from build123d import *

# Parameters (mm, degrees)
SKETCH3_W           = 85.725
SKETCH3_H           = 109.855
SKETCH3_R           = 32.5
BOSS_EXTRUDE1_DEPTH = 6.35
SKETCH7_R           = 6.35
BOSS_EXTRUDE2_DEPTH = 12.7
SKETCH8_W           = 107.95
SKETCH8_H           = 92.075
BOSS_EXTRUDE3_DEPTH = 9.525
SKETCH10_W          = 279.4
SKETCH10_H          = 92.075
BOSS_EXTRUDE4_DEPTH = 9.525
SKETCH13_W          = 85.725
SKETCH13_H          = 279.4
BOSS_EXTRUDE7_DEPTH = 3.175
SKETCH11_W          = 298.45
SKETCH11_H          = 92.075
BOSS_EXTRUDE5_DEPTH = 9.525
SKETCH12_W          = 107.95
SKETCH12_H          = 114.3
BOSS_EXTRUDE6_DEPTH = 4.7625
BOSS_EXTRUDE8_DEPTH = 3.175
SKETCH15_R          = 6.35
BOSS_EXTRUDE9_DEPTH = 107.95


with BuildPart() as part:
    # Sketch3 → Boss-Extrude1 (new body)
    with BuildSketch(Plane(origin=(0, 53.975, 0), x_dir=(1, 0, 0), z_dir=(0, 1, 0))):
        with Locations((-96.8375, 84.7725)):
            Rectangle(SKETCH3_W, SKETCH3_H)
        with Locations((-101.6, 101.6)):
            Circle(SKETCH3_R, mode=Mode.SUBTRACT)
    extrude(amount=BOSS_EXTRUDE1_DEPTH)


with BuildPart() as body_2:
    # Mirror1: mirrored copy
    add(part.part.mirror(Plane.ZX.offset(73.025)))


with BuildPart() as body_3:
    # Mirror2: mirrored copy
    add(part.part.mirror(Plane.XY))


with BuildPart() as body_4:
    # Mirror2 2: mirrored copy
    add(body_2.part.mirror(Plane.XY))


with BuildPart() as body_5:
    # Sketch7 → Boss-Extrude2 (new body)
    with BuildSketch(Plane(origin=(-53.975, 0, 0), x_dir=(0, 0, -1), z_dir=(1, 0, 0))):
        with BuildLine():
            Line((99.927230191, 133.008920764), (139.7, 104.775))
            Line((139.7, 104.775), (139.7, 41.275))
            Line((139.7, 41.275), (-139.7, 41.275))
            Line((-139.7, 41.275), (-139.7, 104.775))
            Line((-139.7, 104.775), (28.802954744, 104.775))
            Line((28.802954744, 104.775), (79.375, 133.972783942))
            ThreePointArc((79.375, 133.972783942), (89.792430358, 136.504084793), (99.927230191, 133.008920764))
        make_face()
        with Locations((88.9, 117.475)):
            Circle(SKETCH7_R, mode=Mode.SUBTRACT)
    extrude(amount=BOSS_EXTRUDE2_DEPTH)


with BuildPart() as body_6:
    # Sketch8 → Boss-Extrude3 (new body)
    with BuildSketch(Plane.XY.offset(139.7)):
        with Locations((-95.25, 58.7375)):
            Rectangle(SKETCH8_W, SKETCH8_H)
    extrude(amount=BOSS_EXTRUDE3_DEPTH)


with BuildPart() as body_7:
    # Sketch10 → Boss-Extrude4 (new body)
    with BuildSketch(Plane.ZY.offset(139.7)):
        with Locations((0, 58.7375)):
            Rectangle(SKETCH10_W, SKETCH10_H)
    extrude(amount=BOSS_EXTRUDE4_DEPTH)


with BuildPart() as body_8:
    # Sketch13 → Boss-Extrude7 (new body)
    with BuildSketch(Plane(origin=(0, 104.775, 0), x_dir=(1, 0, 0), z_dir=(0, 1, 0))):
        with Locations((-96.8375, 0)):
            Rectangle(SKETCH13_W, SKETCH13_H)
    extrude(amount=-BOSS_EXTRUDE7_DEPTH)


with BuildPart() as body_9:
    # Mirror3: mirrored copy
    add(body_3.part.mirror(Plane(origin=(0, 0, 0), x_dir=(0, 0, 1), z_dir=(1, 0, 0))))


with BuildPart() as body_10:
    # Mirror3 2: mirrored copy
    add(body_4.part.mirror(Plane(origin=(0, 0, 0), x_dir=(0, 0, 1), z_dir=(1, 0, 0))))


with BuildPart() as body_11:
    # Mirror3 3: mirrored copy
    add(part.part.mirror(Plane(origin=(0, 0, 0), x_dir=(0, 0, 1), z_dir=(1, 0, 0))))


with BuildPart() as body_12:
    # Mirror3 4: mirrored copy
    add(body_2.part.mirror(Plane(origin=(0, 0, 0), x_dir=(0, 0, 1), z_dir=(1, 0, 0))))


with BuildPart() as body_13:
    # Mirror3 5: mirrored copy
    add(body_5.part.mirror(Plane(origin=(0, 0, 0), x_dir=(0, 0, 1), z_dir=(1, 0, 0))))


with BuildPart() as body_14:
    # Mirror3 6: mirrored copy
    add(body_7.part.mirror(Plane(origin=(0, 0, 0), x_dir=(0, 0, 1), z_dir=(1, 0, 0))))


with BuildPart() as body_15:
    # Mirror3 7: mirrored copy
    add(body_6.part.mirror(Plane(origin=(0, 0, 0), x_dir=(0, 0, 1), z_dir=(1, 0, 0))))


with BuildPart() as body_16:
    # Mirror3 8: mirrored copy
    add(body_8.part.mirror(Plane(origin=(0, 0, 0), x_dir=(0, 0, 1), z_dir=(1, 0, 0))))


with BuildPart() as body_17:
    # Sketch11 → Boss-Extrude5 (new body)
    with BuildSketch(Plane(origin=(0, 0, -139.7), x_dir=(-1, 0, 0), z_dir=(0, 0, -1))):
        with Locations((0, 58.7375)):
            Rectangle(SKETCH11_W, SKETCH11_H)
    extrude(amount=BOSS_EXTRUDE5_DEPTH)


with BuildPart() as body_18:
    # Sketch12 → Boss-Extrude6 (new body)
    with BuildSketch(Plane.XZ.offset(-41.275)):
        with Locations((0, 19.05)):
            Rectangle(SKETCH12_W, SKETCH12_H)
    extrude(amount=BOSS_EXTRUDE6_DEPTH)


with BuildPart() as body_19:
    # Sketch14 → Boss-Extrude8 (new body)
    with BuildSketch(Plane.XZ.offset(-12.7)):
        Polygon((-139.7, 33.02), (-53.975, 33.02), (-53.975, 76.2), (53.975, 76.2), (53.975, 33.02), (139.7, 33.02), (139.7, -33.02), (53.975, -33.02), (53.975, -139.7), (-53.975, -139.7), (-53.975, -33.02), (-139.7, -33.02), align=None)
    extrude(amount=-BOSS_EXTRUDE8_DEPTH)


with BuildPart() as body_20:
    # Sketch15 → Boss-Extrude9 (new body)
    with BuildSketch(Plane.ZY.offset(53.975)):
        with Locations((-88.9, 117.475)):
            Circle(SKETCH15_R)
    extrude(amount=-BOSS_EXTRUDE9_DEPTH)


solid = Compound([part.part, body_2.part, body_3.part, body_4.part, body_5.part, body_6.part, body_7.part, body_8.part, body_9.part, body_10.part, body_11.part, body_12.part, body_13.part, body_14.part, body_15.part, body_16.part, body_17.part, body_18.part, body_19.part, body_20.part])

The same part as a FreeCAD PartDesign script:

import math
import FreeCAD as App
import Part
import Sketcher

V = App.Vector
Q = App.Units.Quantity

doc = App.newDocument("Part")
body = doc.addObject("PartDesign::Body", "Body")

# Sketch on XZ plane
sketch1 = body.newObject("Sketcher::SketchObject", "Sketch")
sketch1.AttachmentSupport = (doc.getObject("XZ_Plane"), [""])
sketch1.MapMode = "FlatFace"
sketch1.AttachmentOffset = App.Placement(V(0, 0, -2.125 * 25.4), App.Rotation())
sketch1.addGeometry(Part.LineSegment(V(-139.7, -139.7, 0), V(-139.7, -29.845, 0)), False)
sketch1.addGeometry(Part.LineSegment(V(-139.7, -29.845, 0), V(-53.975, -29.845, 0)), False)
sketch1.addGeometry(Part.LineSegment(V(-53.975, -29.845, 0), V(-53.975, -139.7, 0)), False)
sketch1.addGeometry(Part.LineSegment(V(-53.975, -139.7, 0), V(-139.7, -139.7, 0)), False)
sketch1.addGeometry(Part.Circle(V(-101.6, -101.6, 0), V(0, 0, 1), 32.5), False)
sketch1.addConstraint(Sketcher.Constraint("Coincident", 0, 2, 1, 1))
sketch1.addConstraint(Sketcher.Constraint("Coincident", 1, 2, 2, 1))
sketch1.addConstraint(Sketcher.Constraint("Coincident", 2, 2, 3, 1))
sketch1.addConstraint(Sketcher.Constraint("Coincident", 3, 2, 0, 1))
sketch1.addConstraint(Sketcher.Constraint("Vertical", 0))
sketch1.addConstraint(Sketcher.Constraint("Horizontal", 1))
sketch1.addConstraint(Sketcher.Constraint("Vertical", 2))
sketch1.addConstraint(Sketcher.Constraint("Horizontal", 3))
sketch1.addConstraint(Sketcher.Constraint("DistanceX", 4, 3, -1, 1, Q("4 in")))
sketch1.addConstraint(Sketcher.Constraint("DistanceY", 4, 3, -1, 1, Q("4 in")))
sketch1.addConstraint(Sketcher.Constraint("DistanceX", 0, 2, -1, 1, Q("5.5 in")))
sketch1.addConstraint(Sketcher.Constraint("DistanceY", 2, 2, -1, 1, Q("5.5 in")))
sketch1.addConstraint(Sketcher.Constraint("Diameter", 4, Q("65 mm")))
sketch1.addConstraint(Sketcher.Constraint("DistanceX", 1, 1, 1, 2, Q("3.375 in")))
sketch1.addConstraint(Sketcher.Constraint("DistanceY", 0, 1, 0, 2, Q("4.325 in")))
pad1 = body.newObject("PartDesign::Pad", "Pad")
pad1.Profile = sketch1
pad1.Length = Q("0.25 in")
pad1.Reversed = True
body2 = doc.addObject("PartDesign::Body", "Body001")
doc.recompute()

mirroring = doc.addObject("Part::Mirroring", "Mirroring")
mirroring.Source = body
mirroring.Base = V(0, 73.025, 0)
mirroring.Normal = V(0, 1, 0)
body2.BaseFeature = mirroring
doc.recompute()
body3 = doc.addObject("PartDesign::Body", "Body002")
doc.recompute()

mirroring2 = doc.addObject("Part::Mirroring", "Mirroring001")
mirroring2.Source = body
mirroring2.Base = V(0, 0, 0)
mirroring2.Normal = V(0, 0, 1)
body3.BaseFeature = mirroring2
doc.recompute()
body4 = doc.addObject("PartDesign::Body", "Body003")
doc.recompute()

mirroring3 = doc.addObject("Part::Mirroring", "Mirroring002")
mirroring3.Source = body2
mirroring3.Base = V(0, 0, 0)
mirroring3.Normal = V(0, 0, 1)
body4.BaseFeature = mirroring3
doc.recompute()
body5 = doc.addObject("PartDesign::Body", "Body004")

# Sketch on YZ plane
sketch2 = body5.newObject("Sketcher::SketchObject", "Sketch001")
sketch2.AttachmentSupport = (doc.getObject("YZ_Plane004"), [""])
sketch2.MapMode = "FlatFace"
sketch2.AttachmentOffset = App.Placement(V(0, 0, -2.125 * 25.4), App.Rotation())
sketch2.addGeometry(Part.LineSegment(V(104.775, -139.7, 0), V(133.008921, -99.92723, 0)), False)
sketch2.addGeometry(Part.ArcOfCircle(Part.Circle(V(117.475, -88.9, 0), V(0, 0, 1), 19.05), math.radians(-35.370206), math.radians(30)), False)
sketch2.addGeometry(Part.LineSegment(V(133.972784, -79.375, 0), V(104.775, -28.802955, 0)), False)
sketch2.addGeometry(Part.LineSegment(V(104.775, -28.802955, 0), V(104.775, 139.7, 0)), False)
sketch2.addGeometry(Part.LineSegment(V(104.775, 139.7, 0), V(41.275, 139.7, 0)), False)
sketch2.addGeometry(Part.LineSegment(V(41.275, 139.7, 0), V(41.275, -139.7, 0)), False)
sketch2.addGeometry(Part.LineSegment(V(41.275, -139.7, 0), V(104.775, -139.7, 0)), False)
sketch2.addGeometry(Part.Circle(V(117.475, -88.9, 0), V(0, 0, 1), 6.35), False)
sketch2.addConstraint(Sketcher.Constraint("Tangent", 0, 2, 1, 1))
sketch2.addConstraint(Sketcher.Constraint("Tangent", 1, 2, 2, 1))
sketch2.addConstraint(Sketcher.Constraint("Coincident", 2, 2, 3, 1))
sketch2.addConstraint(Sketcher.Constraint("Coincident", 3, 2, 4, 1))
sketch2.addConstraint(Sketcher.Constraint("Coincident", 4, 2, 5, 1))
sketch2.addConstraint(Sketcher.Constraint("Coincident", 5, 2, 6, 1))
sketch2.addConstraint(Sketcher.Constraint("Coincident", 6, 2, 0, 1))
sketch2.addConstraint(Sketcher.Constraint("Vertical", 3))
sketch2.addConstraint(Sketcher.Constraint("Horizontal", 4))
sketch2.addConstraint(Sketcher.Constraint("Vertical", 5))
sketch2.addConstraint(Sketcher.Constraint("Horizontal", 6))
sketch2.addConstraint(Sketcher.Constraint("Coincident", 7, 3, 1, 3))
sketch2.addConstraint(Sketcher.Constraint("Symmetric", 3, 2, 6, 2, -1))
sketch2.addConstraint(Sketcher.Constraint("Diameter", 7, Q("0.5 in")))
sketch2.addConstraint(Sketcher.Constraint("DistanceY", 5, 2, 5, 1, Q("11 in")))
sketch2.addConstraint(Sketcher.Constraint("Radius", 1, Q("0.75 in")))
sketch2.addConstraint(Sketcher.Constraint("DistanceX", 4, 2, 4, 1, Q("2.5 in")))
sketch2.addConstraint(Sketcher.Constraint("Angle", 2, Q("120 deg")))
sketch2.addConstraint(Sketcher.Constraint("DistanceY", 7, 3, 3, 2, Q("9 in")))
sketch2.addConstraint(Sketcher.Constraint("DistanceX", 4, 2, 7, 3, Q("3 in")))
sketch2.addConstraint(Sketcher.Constraint("DistanceX", -1, 1, 1, 3, Q("4.625 in")))
pad2 = body5.newObject("PartDesign::Pad", "Pad001")
pad2.Profile = sketch2
pad2.Length = Q("0.5 in")
body6 = doc.addObject("PartDesign::Body", "Body005")

# Sketch on XY plane
sketch3 = body6.newObject("Sketcher::SketchObject", "Sketch002")
sketch3.AttachmentSupport = (doc.getObject("XY_Plane005"), [""])
sketch3.MapMode = "FlatFace"
sketch3.AttachmentOffset = App.Placement(V(0, 0, 5.5 * 25.4), App.Rotation())
sketch3.addGeometry(Part.LineSegment(V(-149.225, 104.775, 0), V(-149.225, 12.7, 0)), False)
sketch3.addGeometry(Part.LineSegment(V(-149.225, 12.7, 0), V(-41.275, 12.7, 0)), False)
sketch3.addGeometry(Part.LineSegment(V(-41.275, 12.7, 0), V(-41.275, 104.775, 0)), False)
sketch3.addGeometry(Part.LineSegment(V(-41.275, 104.775, 0), V(-149.225, 104.775, 0)), False)
sketch3.addConstraint(Sketcher.Constraint("Coincident", 0, 2, 1, 1))
sketch3.addConstraint(Sketcher.Constraint("Coincident", 1, 2, 2, 1))
sketch3.addConstraint(Sketcher.Constraint("Coincident", 2, 2, 3, 1))
sketch3.addConstraint(Sketcher.Constraint("Coincident", 3, 2, 0, 1))
sketch3.addConstraint(Sketcher.Constraint("Vertical", 0))
sketch3.addConstraint(Sketcher.Constraint("Horizontal", 1))
sketch3.addConstraint(Sketcher.Constraint("Vertical", 2))
sketch3.addConstraint(Sketcher.Constraint("Horizontal", 3))
sketch3.addConstraint(Sketcher.Constraint("DistanceX", 1, 1, 1, 2, Q("4.25 in")))
sketch3.addConstraint(Sketcher.Constraint("DistanceY", -1, 1, 0, 2, Q("0.5 in")))
sketch3.addConstraint(Sketcher.Constraint("DistanceY", 0, 2, 0, 1, Q("3.625 in")))
sketch3.addConstraint(Sketcher.Constraint("DistanceX", 0, 2, -1, 1, Q("5.875 in")))
pad3 = body6.newObject("PartDesign::Pad", "Pad002")
pad3.Profile = sketch3
pad3.Length = Q("0.375 in")
body7 = doc.addObject("PartDesign::Body", "Body006")

# Sketch on YZ plane
sketch4 = body7.newObject("Sketcher::SketchObject", "Sketch003")
sketch4.AttachmentSupport = (doc.getObject("YZ_Plane006"), [""])
sketch4.MapMode = "FlatFace"
sketch4.AttachmentOffset = App.Placement(V(0, 0, -5.5 * 25.4), App.Rotation())
sketch4.addGeometry(Part.LineSegment(V(104.775, -139.7, 0), V(12.7, -139.7, 0)), False)
sketch4.addGeometry(Part.LineSegment(V(12.7, -139.7, 0), V(12.7, 139.7, 0)), False)
sketch4.addGeometry(Part.LineSegment(V(12.7, 139.7, 0), V(104.775, 139.7, 0)), False)
sketch4.addGeometry(Part.LineSegment(V(104.775, 139.7, 0), V(104.775, -139.7, 0)), False)
sketch4.addConstraint(Sketcher.Constraint("Coincident", 0, 2, 1, 1))
sketch4.addConstraint(Sketcher.Constraint("Coincident", 1, 2, 2, 1))
sketch4.addConstraint(Sketcher.Constraint("Coincident", 2, 2, 3, 1))
sketch4.addConstraint(Sketcher.Constraint("Coincident", 3, 2, 0, 1))
sketch4.addConstraint(Sketcher.Constraint("Horizontal", 0))
sketch4.addConstraint(Sketcher.Constraint("Vertical", 1))
sketch4.addConstraint(Sketcher.Constraint("Horizontal", 2))
sketch4.addConstraint(Sketcher.Constraint("Vertical", 3))
sketch4.addConstraint(Sketcher.Constraint("DistanceY", 1, 1, 1, 2, Q("11 in")))
sketch4.addConstraint(Sketcher.Constraint("DistanceX", -1, 1, 0, 2, Q("0.5 in")))
sketch4.addConstraint(Sketcher.Constraint("DistanceY", 0, 2, -1, 1, Q("5.5 in")))
sketch4.addConstraint(Sketcher.Constraint("DistanceX", 0, 2, 0, 1, Q("3.625 in")))
pad4 = body7.newObject("PartDesign::Pad", "Pad003")
pad4.Profile = sketch4
pad4.Length = Q("0.375 in")
pad4.Reversed = True
body8 = doc.addObject("PartDesign::Body", "Body007")

# Sketch on XZ plane
sketch5 = body8.newObject("Sketcher::SketchObject", "Sketch004")
sketch5.AttachmentSupport = (doc.getObject("XZ_Plane007"), [""])
sketch5.MapMode = "FlatFace"
sketch5.AttachmentOffset = App.Placement(V(0, 0, -4.125 * 25.4), App.Rotation())
sketch5.addGeometry(Part.LineSegment(V(-139.7, -139.7, 0), V(-139.7, 139.7, 0)), False)
sketch5.addGeometry(Part.LineSegment(V(-139.7, 139.7, 0), V(-53.975, 139.7, 0)), False)
sketch5.addGeometry(Part.LineSegment(V(-53.975, 139.7, 0), V(-53.975, -139.7, 0)), False)
sketch5.addGeometry(Part.LineSegment(V(-53.975, -139.7, 0), V(-139.7, -139.7, 0)), False)
sketch5.addConstraint(Sketcher.Constraint("Coincident", 0, 2, 1, 1))
sketch5.addConstraint(Sketcher.Constraint("Coincident", 1, 2, 2, 1))
sketch5.addConstraint(Sketcher.Constraint("Coincident", 2, 2, 3, 1))
sketch5.addConstraint(Sketcher.Constraint("Coincident", 3, 2, 0, 1))
sketch5.addConstraint(Sketcher.Constraint("Vertical", 0))
sketch5.addConstraint(Sketcher.Constraint("Horizontal", 1))
sketch5.addConstraint(Sketcher.Constraint("Vertical", 2))
sketch5.addConstraint(Sketcher.Constraint("Horizontal", 3))
sketch5.addConstraint(Sketcher.Constraint("DistanceY", 0, 1, 0, 2, Q("11 in")))
sketch5.addConstraint(Sketcher.Constraint("DistanceX", 0, 2, -1, 1, Q("5.5 in")))
sketch5.addConstraint(Sketcher.Constraint("DistanceY", -1, 1, 0, 2, Q("5.5 in")))
sketch5.addConstraint(Sketcher.Constraint("DistanceX", 1, 1, 1, 2, Q("3.375 in")))
pad5 = body8.newObject("PartDesign::Pad", "Pad004")
pad5.Profile = sketch5
pad5.Length = Q("0.125 in")
body9 = doc.addObject("PartDesign::Body", "Body008")
doc.recompute()

mirroring4 = doc.addObject("Part::Mirroring", "Mirroring003")
mirroring4.Source = body3
mirroring4.Base = V(0, 0, 0)
mirroring4.Normal = V(1, 0, 0)
body9.BaseFeature = mirroring4
doc.recompute()
body10 = doc.addObject("PartDesign::Body", "Body009")
doc.recompute()

mirroring5 = doc.addObject("Part::Mirroring", "Mirroring004")
mirroring5.Source = body4
mirroring5.Base = V(0, 0, 0)
mirroring5.Normal = V(1, 0, 0)
body10.BaseFeature = mirroring5
doc.recompute()
body11 = doc.addObject("PartDesign::Body", "Body010")
doc.recompute()

mirroring6 = doc.addObject("Part::Mirroring", "Mirroring005")
mirroring6.Source = body
mirroring6.Base = V(0, 0, 0)
mirroring6.Normal = V(1, 0, 0)
body11.BaseFeature = mirroring6
doc.recompute()
body12 = doc.addObject("PartDesign::Body", "Body011")
doc.recompute()

mirroring7 = doc.addObject("Part::Mirroring", "Mirroring006")
mirroring7.Source = body2
mirroring7.Base = V(0, 0, 0)
mirroring7.Normal = V(1, 0, 0)
body12.BaseFeature = mirroring7
doc.recompute()
body13 = doc.addObject("PartDesign::Body", "Body012")
doc.recompute()

mirroring8 = doc.addObject("Part::Mirroring", "Mirroring007")
mirroring8.Source = body5
mirroring8.Base = V(0, 0, 0)
mirroring8.Normal = V(1, 0, 0)
body13.BaseFeature = mirroring8
doc.recompute()
body14 = doc.addObject("PartDesign::Body", "Body013")
doc.recompute()

mirroring9 = doc.addObject("Part::Mirroring", "Mirroring008")
mirroring9.Source = body7
mirroring9.Base = V(0, 0, 0)
mirroring9.Normal = V(1, 0, 0)
body14.BaseFeature = mirroring9
doc.recompute()
body15 = doc.addObject("PartDesign::Body", "Body014")
doc.recompute()

mirroring10 = doc.addObject("Part::Mirroring", "Mirroring009")
mirroring10.Source = body6
mirroring10.Base = V(0, 0, 0)
mirroring10.Normal = V(1, 0, 0)
body15.BaseFeature = mirroring10
doc.recompute()
body16 = doc.addObject("PartDesign::Body", "Body015")
doc.recompute()

mirroring11 = doc.addObject("Part::Mirroring", "Mirroring010")
mirroring11.Source = body8
mirroring11.Base = V(0, 0, 0)
mirroring11.Normal = V(1, 0, 0)
body16.BaseFeature = mirroring11
doc.recompute()
body17 = doc.addObject("PartDesign::Body", "Body016")

# Sketch on XY plane
sketch6 = body17.newObject("Sketcher::SketchObject", "Sketch005")
sketch6.AttachmentSupport = (doc.getObject("XY_Plane016"), [""])
sketch6.MapMode = "FlatFace"
sketch6.AttachmentOffset = App.Placement(V(0, 0, -5.5 * 25.4), App.Rotation())
sketch6.addGeometry(Part.LineSegment(V(149.225, 104.775, 0), V(149.225, 12.7, 0)), False)
sketch6.addGeometry(Part.LineSegment(V(149.225, 12.7, 0), V(-149.225, 12.7, 0)), False)
sketch6.addGeometry(Part.LineSegment(V(-149.225, 12.7, 0), V(-149.225, 104.775, 0)), False)
sketch6.addGeometry(Part.LineSegment(V(-149.225, 104.775, 0), V(149.225, 104.775, 0)), False)
sketch6.addConstraint(Sketcher.Constraint("Coincident", 0, 2, 1, 1))
sketch6.addConstraint(Sketcher.Constraint("Coincident", 1, 2, 2, 1))
sketch6.addConstraint(Sketcher.Constraint("Coincident", 2, 2, 3, 1))
sketch6.addConstraint(Sketcher.Constraint("Coincident", 3, 2, 0, 1))
sketch6.addConstraint(Sketcher.Constraint("Vertical", 0))
sketch6.addConstraint(Sketcher.Constraint("Horizontal", 1))
sketch6.addConstraint(Sketcher.Constraint("Vertical", 2))
sketch6.addConstraint(Sketcher.Constraint("Horizontal", 3))
sketch6.addConstraint(Sketcher.Constraint("DistanceX", 1, 2, 1, 1, Q("11.75 in")))
sketch6.addConstraint(Sketcher.Constraint("DistanceY", -1, 1, 0, 2, Q("0.5 in")))
sketch6.addConstraint(Sketcher.Constraint("DistanceY", 0, 2, 0, 1, Q("3.625 in")))
sketch6.addConstraint(Sketcher.Constraint("DistanceX", -1, 1, 0, 2, Q("5.875 in")))
pad6 = body17.newObject("PartDesign::Pad", "Pad005")
pad6.Profile = sketch6
pad6.Length = Q("0.375 in")
pad6.Reversed = True
body18 = doc.addObject("PartDesign::Body", "Body017")

# Sketch on XZ plane
sketch7 = body18.newObject("Sketcher::SketchObject", "Sketch006")
sketch7.AttachmentSupport = (doc.getObject("XZ_Plane017"), [""])
sketch7.MapMode = "FlatFace"
sketch7.AttachmentOffset = App.Placement(V(0, 0, -1.625 * 25.4), App.Rotation())
sketch7.addGeometry(Part.LineSegment(V(-53.975, 76.2, 0), V(-53.975, -38.1, 0)), False)
sketch7.addGeometry(Part.LineSegment(V(-53.975, -38.1, 0), V(53.975, -38.1, 0)), False)
sketch7.addGeometry(Part.LineSegment(V(53.975, -38.1, 0), V(53.975, 76.2, 0)), False)
sketch7.addGeometry(Part.LineSegment(V(53.975, 76.2, 0), V(-53.975, 76.2, 0)), False)
sketch7.addConstraint(Sketcher.Constraint("Coincident", 0, 2, 1, 1))
sketch7.addConstraint(Sketcher.Constraint("Coincident", 1, 2, 2, 1))
sketch7.addConstraint(Sketcher.Constraint("Coincident", 2, 2, 3, 1))
sketch7.addConstraint(Sketcher.Constraint("Coincident", 3, 2, 0, 1))
sketch7.addConstraint(Sketcher.Constraint("Vertical", 0))
sketch7.addConstraint(Sketcher.Constraint("Horizontal", 1))
sketch7.addConstraint(Sketcher.Constraint("Vertical", 2))
sketch7.addConstraint(Sketcher.Constraint("Horizontal", 3))
sketch7.addConstraint(Sketcher.Constraint("DistanceY", 0, 2, 0, 1, Q("4.5 in")))
sketch7.addConstraint(Sketcher.Constraint("DistanceY", -1, 1, 2, 2, Q("3 in")))
sketch7.addConstraint(Sketcher.Constraint("DistanceX", 1, 1, 1, 2, Q("4.25 in")))
sketch7.addConstraint(Sketcher.Constraint("DistanceX", 0, 2, -1, 1, Q("2.125 in")))
pad7 = body18.newObject("PartDesign::Pad", "Pad006")
pad7.Profile = sketch7
pad7.Length = Q("0.1875 in")
body19 = doc.addObject("PartDesign::Body", "Body018")

# Sketch on XZ plane
sketch8 = body19.newObject("Sketcher::SketchObject", "Sketch007")
sketch8.AttachmentSupport = (doc.getObject("XZ_Plane018"), [""])
sketch8.MapMode = "FlatFace"
sketch8.AttachmentOffset = App.Placement(V(0, 0, -0.5 * 25.4), App.Rotation())
sketch8.addGeometry(Part.LineSegment(V(-53.975, 33.02, 0), V(-139.7, 33.02, 0)), False)
sketch8.addGeometry(Part.LineSegment(V(-139.7, 33.02, 0), V(-139.7, -33.02, 0)), False)
sketch8.addGeometry(Part.LineSegment(V(-139.7, -33.02, 0), V(-53.975, -33.02, 0)), False)
sketch8.addGeometry(Part.LineSegment(V(-53.975, -33.02, 0), V(-53.975, -139.7, 0)), False)
sketch8.addGeometry(Part.LineSegment(V(-53.975, -139.7, 0), V(53.975, -139.7, 0)), False)
sketch8.addGeometry(Part.LineSegment(V(53.975, -139.7, 0), V(53.975, -33.02, 0)), False)
sketch8.addGeometry(Part.LineSegment(V(53.975, -33.02, 0), V(139.7, -33.02, 0)), False)
sketch8.addGeometry(Part.LineSegment(V(139.7, -33.02, 0), V(139.7, 33.02, 0)), False)
sketch8.addGeometry(Part.LineSegment(V(139.7, 33.02, 0), V(53.975, 33.02, 0)), False)
sketch8.addGeometry(Part.LineSegment(V(53.975, 33.02, 0), V(53.975, 76.2, 0)), False)
sketch8.addGeometry(Part.LineSegment(V(53.975, 76.2, 0), V(-53.975, 76.2, 0)), False)
sketch8.addGeometry(Part.LineSegment(V(-53.975, 76.2, 0), V(-53.975, 33.02, 0)), False)
sketch8.addConstraint(Sketcher.Constraint("Coincident", 0, 2, 1, 1))
sketch8.addConstraint(Sketcher.Constraint("Coincident", 1, 2, 2, 1))
sketch8.addConstraint(Sketcher.Constraint("Coincident", 2, 2, 3, 1))
sketch8.addConstraint(Sketcher.Constraint("Coincident", 3, 2, 4, 1))
sketch8.addConstraint(Sketcher.Constraint("Coincident", 4, 2, 5, 1))
sketch8.addConstraint(Sketcher.Constraint("Coincident", 5, 2, 6, 1))
sketch8.addConstraint(Sketcher.Constraint("Coincident", 6, 2, 7, 1))
sketch8.addConstraint(Sketcher.Constraint("Coincident", 7, 2, 8, 1))
sketch8.addConstraint(Sketcher.Constraint("Coincident", 8, 2, 9, 1))
sketch8.addConstraint(Sketcher.Constraint("Coincident", 9, 2, 10, 1))
sketch8.addConstraint(Sketcher.Constraint("Coincident", 10, 2, 11, 1))
sketch8.addConstraint(Sketcher.Constraint("Coincident", 11, 2, 0, 1))
sketch8.addConstraint(Sketcher.Constraint("Horizontal", 0))
sketch8.addConstraint(Sketcher.Constraint("Vertical", 1))
sketch8.addConstraint(Sketcher.Constraint("Horizontal", 2))
sketch8.addConstraint(Sketcher.Constraint("Vertical", 3))
sketch8.addConstraint(Sketcher.Constraint("Horizontal", 4))
sketch8.addConstraint(Sketcher.Constraint("Vertical", 5))
sketch8.addConstraint(Sketcher.Constraint("Horizontal", 6))
sketch8.addConstraint(Sketcher.Constraint("Vertical", 7))
sketch8.addConstraint(Sketcher.Constraint("Horizontal", 8))
sketch8.addConstraint(Sketcher.Constraint("Vertical", 9))
sketch8.addConstraint(Sketcher.Constraint("Horizontal", 10))
sketch8.addConstraint(Sketcher.Constraint("Vertical", 11))
sketch8.addConstraint(Sketcher.Constraint("Symmetric", 0, 2, 6, 2, -1, 1))
sketch8.addConstraint(Sketcher.Constraint("Symmetric", 2, 2, 8, 2, -1, 1))
sketch8.addConstraint(Sketcher.Constraint("Symmetric", 2, 2, 5, 2, -2))
sketch8.addConstraint(Sketcher.Constraint("Vertical", 3, 2, 10, 2))
sketch8.addConstraint(Sketcher.Constraint("DistanceY", 1, 2, 1, 1, Q("2.6 in")))
sketch8.addConstraint(Sketcher.Constraint("DistanceY", 3, 2, 3, 1, Q("4.2 in")))
sketch8.addConstraint(Sketcher.Constraint("DistanceY", 9, 1, 9, 2, Q("1.7 in")))
sketch8.addConstraint(Sketcher.Constraint("DistanceX", 1, 2, 6, 2, Q("11 in")))
sketch8.addConstraint(Sketcher.Constraint("DistanceX", 4, 1, 4, 2, Q("4.25 in")))
pad8 = body19.newObject("PartDesign::Pad", "Pad007")
pad8.Profile = sketch8
pad8.Length = Q("0.125 in")
pad8.Reversed = True
body20 = doc.addObject("PartDesign::Body", "Body019")

# Sketch on YZ plane
sketch9 = body20.newObject("Sketcher::SketchObject", "Sketch008")
sketch9.AttachmentSupport = (doc.getObject("YZ_Plane019"), [""])
sketch9.MapMode = "FlatFace"
sketch9.AttachmentOffset = App.Placement(V(0, 0, -2.125 * 25.4), App.Rotation())
sketch9.addGeometry(Part.Circle(V(117.475, -88.9, 0), V(0, 0, 1), 6.35), False)
sketch9.addConstraint(Sketcher.Constraint("Diameter", 0, Q("0.5 in")))
sketch9.addConstraint(Sketcher.Constraint("DistanceY", 0, 3, -1, 1, Q("3.5 in")))
sketch9.addConstraint(Sketcher.Constraint("DistanceX", -1, 1, 0, 3, Q("4.625 in")))
pad9 = body20.newObject("PartDesign::Pad", "Pad008")
pad9.Profile = sketch9
pad9.Length = Q("4.25 in")

doc.recompute()
